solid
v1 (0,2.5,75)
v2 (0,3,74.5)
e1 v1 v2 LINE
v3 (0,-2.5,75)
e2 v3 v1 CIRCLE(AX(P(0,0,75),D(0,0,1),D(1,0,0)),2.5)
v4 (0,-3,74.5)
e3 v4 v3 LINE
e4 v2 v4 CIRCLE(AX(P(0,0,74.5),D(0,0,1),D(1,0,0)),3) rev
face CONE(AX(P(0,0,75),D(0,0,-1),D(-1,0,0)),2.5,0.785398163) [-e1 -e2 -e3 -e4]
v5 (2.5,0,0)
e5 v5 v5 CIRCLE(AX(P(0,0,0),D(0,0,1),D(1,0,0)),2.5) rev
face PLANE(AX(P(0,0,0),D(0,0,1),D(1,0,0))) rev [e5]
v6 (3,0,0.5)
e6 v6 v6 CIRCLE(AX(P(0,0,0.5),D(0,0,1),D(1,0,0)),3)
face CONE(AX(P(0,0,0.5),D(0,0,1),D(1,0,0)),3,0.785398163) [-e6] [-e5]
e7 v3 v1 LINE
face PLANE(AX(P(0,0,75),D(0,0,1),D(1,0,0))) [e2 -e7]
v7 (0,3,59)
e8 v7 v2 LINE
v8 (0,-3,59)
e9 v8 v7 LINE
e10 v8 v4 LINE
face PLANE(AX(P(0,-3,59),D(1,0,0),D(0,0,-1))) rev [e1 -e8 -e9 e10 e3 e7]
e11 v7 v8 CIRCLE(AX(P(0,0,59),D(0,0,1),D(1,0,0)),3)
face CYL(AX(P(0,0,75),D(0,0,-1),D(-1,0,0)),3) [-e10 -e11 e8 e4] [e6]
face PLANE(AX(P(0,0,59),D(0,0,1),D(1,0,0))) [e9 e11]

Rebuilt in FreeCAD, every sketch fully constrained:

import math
import FreeCAD as App
import Part
import Sketcher
from FreeCAD import Vector


def edges_at(feature, points):
    """Names of the edges that pass closest to the given points."""
    edges = feature.Shape.Edges
    near = lambda p: min(range(len(edges)), key=lambda i: edges[i].distToShape(Part.Vertex(*p))[0])
    return sorted({f"Edge{near(p) + 1}" for p in points})

doc = App.newDocument("Part")
body = doc.addObject("PartDesign::Body", "Body")

sketch1 = body.newObject("Sketcher::SketchObject", "Sketch")
sketch1.AttachmentSupport = (doc.getObject("XY_Plane"), [""])
sketch1.MapMode = "FlatFace"
sketch1.addGeometry(Part.Circle(Vector(0, 0, 0), Vector(0, 0, 1), 3), False)
sketch1.addConstraint([
    Sketcher.Constraint("Coincident", 0, 3, -1, 1),
    Sketcher.Constraint("Diameter", 0, 6.0),
])
pad1 = body.newObject("PartDesign::Pad", "Pad")
pad1.Profile = sketch1
pad1.Length = 75
doc.recompute()

chamfer = body.newObject("PartDesign::Chamfer", "Chamfer")
chamfer.Base = (pad1, edges_at(pad1, [(-3, 0, 0), (-3, 0, 75)]))
chamfer.Size = 0.5

sketch2 = body.newObject("Sketcher::SketchObject", "Sketch001")
sketch2.AttachmentSupport = (doc.getObject("XY_Plane"), [""])
sketch2.MapMode = "FlatFace"
sketch2.AttachmentOffset = App.Placement(Vector(0, 0, 59), App.Rotation())
sketch2.addGeometry([
    Part.LineSegment(Vector(0, -3, 0), Vector(0, 3, 0)),
    Part.ArcOfCircle(Part.Circle(Vector(0, 0, 0), Vector(0, 0, 1), 3), math.radians(90), math.radians(270)),
], False)
sketch2.addConstraint([
    Sketcher.Constraint("Coincident", 0, 1, 1, 2),
    Sketcher.Constraint("Coincident", 1, 1, 0, 2),
    Sketcher.Constraint("Vertical", 0),
    Sketcher.Constraint("Coincident", 1, 3, -1, 1),
    Sketcher.Constraint("PointOnObject", 0, 1, -2),
    Sketcher.Constraint("Radius", 1, 3.0),
])
pocket1 = body.newObject("PartDesign::Pocket", "Pocket")
pocket1.Profile = sketch2
pocket1.Length = 16
pocket1.Reversed = True

doc.recompute()
